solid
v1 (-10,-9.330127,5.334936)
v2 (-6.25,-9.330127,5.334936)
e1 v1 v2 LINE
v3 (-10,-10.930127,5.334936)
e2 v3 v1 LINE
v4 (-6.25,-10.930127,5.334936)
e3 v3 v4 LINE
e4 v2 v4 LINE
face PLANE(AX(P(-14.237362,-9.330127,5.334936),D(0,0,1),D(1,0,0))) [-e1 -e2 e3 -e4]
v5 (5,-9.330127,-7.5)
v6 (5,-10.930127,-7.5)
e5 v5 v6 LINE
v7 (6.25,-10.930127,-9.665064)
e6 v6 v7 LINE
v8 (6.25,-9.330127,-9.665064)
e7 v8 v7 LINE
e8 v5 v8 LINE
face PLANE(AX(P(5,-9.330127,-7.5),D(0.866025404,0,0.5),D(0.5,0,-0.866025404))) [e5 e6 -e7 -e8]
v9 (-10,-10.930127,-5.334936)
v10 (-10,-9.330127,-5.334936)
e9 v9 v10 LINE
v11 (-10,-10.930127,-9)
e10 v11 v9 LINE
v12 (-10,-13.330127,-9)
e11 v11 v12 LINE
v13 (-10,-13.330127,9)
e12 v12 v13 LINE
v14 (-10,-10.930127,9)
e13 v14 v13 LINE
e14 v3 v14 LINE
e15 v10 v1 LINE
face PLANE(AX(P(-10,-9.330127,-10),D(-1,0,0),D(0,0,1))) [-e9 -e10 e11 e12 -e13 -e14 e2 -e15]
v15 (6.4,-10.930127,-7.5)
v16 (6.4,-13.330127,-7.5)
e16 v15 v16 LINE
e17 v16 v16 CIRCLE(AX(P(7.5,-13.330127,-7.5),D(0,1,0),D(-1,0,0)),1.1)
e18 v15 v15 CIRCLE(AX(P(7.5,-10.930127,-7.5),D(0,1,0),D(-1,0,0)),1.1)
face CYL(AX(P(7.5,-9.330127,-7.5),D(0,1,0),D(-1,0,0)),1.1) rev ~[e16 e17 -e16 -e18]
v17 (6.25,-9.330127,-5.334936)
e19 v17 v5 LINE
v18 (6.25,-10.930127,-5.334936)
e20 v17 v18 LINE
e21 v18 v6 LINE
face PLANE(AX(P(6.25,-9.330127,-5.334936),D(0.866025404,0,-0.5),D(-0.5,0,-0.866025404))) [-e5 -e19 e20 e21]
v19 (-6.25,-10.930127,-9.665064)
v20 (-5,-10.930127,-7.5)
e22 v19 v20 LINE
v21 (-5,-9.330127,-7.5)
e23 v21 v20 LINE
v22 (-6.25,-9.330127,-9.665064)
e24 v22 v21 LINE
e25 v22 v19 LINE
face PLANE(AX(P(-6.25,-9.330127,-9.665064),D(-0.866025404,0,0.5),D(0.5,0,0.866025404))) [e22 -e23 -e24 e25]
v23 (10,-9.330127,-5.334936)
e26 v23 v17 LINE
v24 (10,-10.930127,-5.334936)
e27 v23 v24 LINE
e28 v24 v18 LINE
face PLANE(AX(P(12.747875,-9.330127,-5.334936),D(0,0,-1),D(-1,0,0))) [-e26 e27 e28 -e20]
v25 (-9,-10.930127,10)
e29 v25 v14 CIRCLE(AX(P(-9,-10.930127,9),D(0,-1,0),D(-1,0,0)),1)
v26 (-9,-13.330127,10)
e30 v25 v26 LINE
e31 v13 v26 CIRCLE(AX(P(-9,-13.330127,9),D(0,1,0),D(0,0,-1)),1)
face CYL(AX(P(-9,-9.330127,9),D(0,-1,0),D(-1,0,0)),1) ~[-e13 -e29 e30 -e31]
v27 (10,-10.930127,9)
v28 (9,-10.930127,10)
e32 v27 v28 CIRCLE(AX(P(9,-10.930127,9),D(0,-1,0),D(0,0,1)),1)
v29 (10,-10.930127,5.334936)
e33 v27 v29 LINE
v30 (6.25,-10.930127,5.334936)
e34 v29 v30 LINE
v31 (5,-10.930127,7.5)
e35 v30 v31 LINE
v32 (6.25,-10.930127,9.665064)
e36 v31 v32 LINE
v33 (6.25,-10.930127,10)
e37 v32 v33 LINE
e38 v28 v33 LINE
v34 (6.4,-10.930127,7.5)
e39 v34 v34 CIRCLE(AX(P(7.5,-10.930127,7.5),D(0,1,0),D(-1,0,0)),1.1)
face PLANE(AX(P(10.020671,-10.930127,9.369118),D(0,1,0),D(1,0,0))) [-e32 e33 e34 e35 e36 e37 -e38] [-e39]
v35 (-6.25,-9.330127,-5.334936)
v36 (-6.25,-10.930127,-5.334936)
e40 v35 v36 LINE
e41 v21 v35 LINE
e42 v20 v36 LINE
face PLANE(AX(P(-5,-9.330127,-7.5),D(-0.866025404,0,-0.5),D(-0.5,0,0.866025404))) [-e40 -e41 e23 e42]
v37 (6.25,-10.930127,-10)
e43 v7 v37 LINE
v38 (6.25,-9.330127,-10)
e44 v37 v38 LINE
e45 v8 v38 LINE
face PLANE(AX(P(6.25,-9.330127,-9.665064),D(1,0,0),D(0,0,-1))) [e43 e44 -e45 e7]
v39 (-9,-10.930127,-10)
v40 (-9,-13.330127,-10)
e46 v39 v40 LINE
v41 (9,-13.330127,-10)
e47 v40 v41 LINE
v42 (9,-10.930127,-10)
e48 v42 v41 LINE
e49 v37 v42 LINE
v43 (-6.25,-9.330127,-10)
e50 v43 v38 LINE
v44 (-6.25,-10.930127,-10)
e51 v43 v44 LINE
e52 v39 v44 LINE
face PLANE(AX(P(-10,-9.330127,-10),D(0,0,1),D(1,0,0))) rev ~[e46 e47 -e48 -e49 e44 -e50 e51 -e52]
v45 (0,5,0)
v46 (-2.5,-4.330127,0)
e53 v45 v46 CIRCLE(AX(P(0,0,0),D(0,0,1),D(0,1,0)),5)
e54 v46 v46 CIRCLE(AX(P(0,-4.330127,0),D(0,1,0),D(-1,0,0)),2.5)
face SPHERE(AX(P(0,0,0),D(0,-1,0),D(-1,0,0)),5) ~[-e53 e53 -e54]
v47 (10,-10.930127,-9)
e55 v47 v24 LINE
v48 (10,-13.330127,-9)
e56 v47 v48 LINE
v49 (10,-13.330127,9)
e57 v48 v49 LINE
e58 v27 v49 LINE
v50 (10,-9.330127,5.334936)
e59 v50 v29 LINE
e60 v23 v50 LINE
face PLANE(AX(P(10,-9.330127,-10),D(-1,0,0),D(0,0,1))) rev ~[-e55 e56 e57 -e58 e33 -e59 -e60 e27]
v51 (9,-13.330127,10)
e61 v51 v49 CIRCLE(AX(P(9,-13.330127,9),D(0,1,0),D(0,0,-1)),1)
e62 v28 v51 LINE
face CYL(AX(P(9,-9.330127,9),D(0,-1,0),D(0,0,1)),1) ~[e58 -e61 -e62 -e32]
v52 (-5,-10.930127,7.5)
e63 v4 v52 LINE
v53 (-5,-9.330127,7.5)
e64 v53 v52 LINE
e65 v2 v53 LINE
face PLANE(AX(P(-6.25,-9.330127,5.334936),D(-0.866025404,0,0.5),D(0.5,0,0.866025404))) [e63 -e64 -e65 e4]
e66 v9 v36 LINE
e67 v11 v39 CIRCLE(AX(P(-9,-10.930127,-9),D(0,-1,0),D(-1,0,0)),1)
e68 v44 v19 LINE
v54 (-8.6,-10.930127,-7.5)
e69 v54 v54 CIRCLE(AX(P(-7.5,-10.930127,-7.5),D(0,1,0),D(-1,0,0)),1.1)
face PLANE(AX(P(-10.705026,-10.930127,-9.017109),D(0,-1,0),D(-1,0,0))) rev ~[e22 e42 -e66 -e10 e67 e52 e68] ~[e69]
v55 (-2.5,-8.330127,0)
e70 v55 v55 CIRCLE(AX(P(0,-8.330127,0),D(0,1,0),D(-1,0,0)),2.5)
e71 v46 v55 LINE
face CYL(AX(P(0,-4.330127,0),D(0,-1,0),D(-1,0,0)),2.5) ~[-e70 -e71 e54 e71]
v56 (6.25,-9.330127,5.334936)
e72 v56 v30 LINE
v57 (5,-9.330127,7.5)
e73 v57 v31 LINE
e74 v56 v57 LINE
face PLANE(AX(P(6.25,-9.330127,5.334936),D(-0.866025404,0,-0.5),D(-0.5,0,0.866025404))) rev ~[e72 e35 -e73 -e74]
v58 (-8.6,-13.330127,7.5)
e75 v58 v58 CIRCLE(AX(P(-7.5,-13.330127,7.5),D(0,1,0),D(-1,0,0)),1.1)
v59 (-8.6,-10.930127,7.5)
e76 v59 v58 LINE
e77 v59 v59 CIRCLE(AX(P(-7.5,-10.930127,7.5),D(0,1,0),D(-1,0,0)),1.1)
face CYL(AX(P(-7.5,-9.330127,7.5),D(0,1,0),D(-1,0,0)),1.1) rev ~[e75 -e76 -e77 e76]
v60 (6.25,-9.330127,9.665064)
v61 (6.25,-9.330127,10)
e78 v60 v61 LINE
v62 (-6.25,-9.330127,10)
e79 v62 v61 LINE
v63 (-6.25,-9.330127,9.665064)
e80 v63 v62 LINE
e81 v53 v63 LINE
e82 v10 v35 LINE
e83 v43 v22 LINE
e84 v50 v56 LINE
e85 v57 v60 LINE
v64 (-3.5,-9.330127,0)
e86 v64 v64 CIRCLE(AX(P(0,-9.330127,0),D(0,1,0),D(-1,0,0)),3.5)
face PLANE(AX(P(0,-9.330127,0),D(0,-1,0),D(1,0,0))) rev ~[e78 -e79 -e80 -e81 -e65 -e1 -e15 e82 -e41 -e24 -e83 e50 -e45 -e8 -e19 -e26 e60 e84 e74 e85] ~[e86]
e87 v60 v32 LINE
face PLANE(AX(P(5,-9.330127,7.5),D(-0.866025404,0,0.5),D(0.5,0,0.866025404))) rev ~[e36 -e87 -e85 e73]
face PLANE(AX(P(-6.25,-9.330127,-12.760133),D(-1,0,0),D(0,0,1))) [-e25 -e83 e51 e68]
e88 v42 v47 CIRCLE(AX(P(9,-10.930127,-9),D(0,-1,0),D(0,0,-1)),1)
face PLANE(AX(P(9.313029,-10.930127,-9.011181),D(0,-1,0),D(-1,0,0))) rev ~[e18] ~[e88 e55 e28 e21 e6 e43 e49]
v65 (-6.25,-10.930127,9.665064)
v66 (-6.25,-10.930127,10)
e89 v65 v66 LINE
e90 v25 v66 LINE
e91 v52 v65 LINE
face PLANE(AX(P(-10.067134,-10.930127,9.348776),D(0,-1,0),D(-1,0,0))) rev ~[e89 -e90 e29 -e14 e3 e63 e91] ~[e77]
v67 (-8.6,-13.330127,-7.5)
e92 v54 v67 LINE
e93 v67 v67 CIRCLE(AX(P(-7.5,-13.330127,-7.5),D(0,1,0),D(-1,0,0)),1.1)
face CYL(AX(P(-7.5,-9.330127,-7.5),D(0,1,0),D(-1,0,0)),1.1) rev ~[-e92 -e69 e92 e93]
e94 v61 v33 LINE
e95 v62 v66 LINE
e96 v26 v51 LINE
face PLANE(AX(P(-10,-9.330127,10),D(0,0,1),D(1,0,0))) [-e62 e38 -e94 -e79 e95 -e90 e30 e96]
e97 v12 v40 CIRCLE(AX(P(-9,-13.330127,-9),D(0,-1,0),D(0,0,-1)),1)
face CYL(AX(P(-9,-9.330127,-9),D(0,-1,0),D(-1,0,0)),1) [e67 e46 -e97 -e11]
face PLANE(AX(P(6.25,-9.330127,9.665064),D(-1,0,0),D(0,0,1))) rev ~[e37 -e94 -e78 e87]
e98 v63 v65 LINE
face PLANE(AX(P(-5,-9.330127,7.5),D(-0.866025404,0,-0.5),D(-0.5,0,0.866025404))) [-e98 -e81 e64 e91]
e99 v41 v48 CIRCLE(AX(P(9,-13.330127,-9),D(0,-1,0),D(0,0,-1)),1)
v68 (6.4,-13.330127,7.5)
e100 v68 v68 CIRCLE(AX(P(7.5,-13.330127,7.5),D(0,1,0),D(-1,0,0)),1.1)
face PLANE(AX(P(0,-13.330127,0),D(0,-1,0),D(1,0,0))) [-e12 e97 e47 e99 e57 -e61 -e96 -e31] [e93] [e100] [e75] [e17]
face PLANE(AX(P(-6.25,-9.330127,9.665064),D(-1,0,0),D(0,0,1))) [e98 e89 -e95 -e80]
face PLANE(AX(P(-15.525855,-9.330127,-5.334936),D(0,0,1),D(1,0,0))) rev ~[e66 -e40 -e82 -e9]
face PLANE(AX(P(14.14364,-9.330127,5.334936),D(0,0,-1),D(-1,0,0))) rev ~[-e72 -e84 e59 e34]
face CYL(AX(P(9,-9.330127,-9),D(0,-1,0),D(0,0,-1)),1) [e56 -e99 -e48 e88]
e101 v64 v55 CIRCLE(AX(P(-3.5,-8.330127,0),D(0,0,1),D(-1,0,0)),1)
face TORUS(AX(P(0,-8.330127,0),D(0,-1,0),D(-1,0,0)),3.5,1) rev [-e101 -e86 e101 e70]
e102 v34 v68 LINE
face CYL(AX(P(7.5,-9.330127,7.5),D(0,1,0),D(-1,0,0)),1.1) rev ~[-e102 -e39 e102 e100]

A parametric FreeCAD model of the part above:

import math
import FreeCAD as App
import Part
import Sketcher

V = App.Vector
Q = App.Units.Quantity


def edges_at(feature, points):
    """Names of the edges that pass closest to the given points."""
    edges = feature.Shape.Edges
    near = lambda p: min(range(len(edges)), key=lambda i: edges[i].distToShape(Part.Vertex(*p))[0])
    return sorted({f"Edge{near(p) + 1}" for p in points})


def add_polygon(sketch, points):
    """Adds a closed chain of lines whose ends are joined by coincident constraints."""
    first, n = sketch.GeometryCount, len(points)
    for a, b in zip(points, points[1:] + points[:1]):
        sketch.addGeometry(Part.LineSegment(App.Vector(*a, 0), App.Vector(*b, 0)), False)
    for i in range(n):
        sketch.addConstraint(Sketcher.Constraint("Coincident", first + i, 2, first + (i + 1) % n, 1))

doc = App.newDocument("Part")
body = doc.addObject("PartDesign::Body", "Body")

# Sketch on XY plane
sketch1 = body.newObject("Sketcher::SketchObject", "Sketch")
sketch1.AttachmentSupport = (doc.getObject("XY_Plane"), [""])
sketch1.MapMode = "FlatFace"
sketch1.addGeometry(Part.LineSegment(V(-2.5, -4.3, 0), V(-2.5, -9.3, 0)), False)
sketch1.addGeometry(Part.LineSegment(V(-2.5, -9.3, 0), V(0, -9.3, 0)), False)
sketch1.addGeometry(Part.LineSegment(V(0, -9.3, 0), V(0, 5, 0)), False)
sketch1.addGeometry(Part.ArcOfCircle(Part.Circle(V(0, 0, 0), V(0, 0, 1), 5), math.radians(90), math.radians(240)), False)
sketch1.addConstraint(Sketcher.Constraint("Coincident", 0, 2, 1, 1))
sketch1.addConstraint(Sketcher.Constraint("Coincident", 1, 2, 2, 1))
sketch1.addConstraint(Sketcher.Constraint("Coincident", 2, 2, 3, 1))
sketch1.addConstraint(Sketcher.Constraint("Coincident", 3, 2, 0, 1))
sketch1.addConstraint(Sketcher.Constraint("Vertical", 0))
sketch1.addConstraint(Sketcher.Constraint("Horizontal", 1))
sketch1.addConstraint(Sketcher.Constraint("Vertical", 2))
sketch1.addConstraint(Sketcher.Constraint("Coincident", 3, 3, -1, 1))
sketch1.addConstraint(Sketcher.Constraint("PointOnObject", 1, 2, -2))
sketch1.addConstraint(Sketcher.Constraint("Radius", 3, 5.0))
sketch1.addConstraint(Sketcher.Constraint("DistanceY", 0, 2, 0, 1, 5.0))
sketch1.addConstraint(Sketcher.Constraint("DistanceX", 1, 1, 1, 2, 2.5))
revolution = body.newObject("PartDesign::Revolution", "Revolution")
revolution.Profile = sketch1
revolution.ReferenceAxis = (sketch1, ["V_Axis"])
revolution.Angle = 360

# Sketch on XZ plane
sketch2 = body.newObject("Sketcher::SketchObject", "Sketch001")
sketch2.AttachmentSupport = (doc.getObject("XZ_Plane"), [""])
sketch2.MapMode = "FlatFace"
sketch2.AttachmentOffset = App.Placement(V(0, 0, 9.330127), App.Rotation())
add_polygon(sketch2, [(-10, 10), (-10, -10), (10, -10), (10, 10)])  # lines 0-3
sketch2.addConstraint(Sketcher.Constraint("Vertical", 0))
sketch2.addConstraint(Sketcher.Constraint("Horizontal", 1))
sketch2.addConstraint(Sketcher.Constraint("Vertical", 2))
sketch2.addConstraint(Sketcher.Constraint("Horizontal", 3))
sketch2.addConstraint(Sketcher.Constraint("Symmetric", 0, 2, 2, 2, -1, 1))
sketch2.addConstraint(Sketcher.Constraint("Equal", 3, 0))
sketch2.addConstraint(Sketcher.Constraint("DistanceX", 1, 1, 1, 2, 20.0))
pad1 = body.newObject("PartDesign::Pad", "Pad")
pad1.Profile = sketch2
pad1.Length = 4

# Sketch on XZ plane
sketch3 = body.newObject("Sketcher::SketchObject", "Sketch002")
sketch3.AttachmentSupport = (doc.getObject("XZ_Plane"), [""])
sketch3.MapMode = "FlatFace"
sketch3.AttachmentOffset = App.Placement(V(0, 0, 9.330127), App.Rotation())
sketch3.addGeometry(Part.Circle(V(7.5, 7.5, 0), V(0, 0, 1), 1.1), False)
sketch3.addConstraint(Sketcher.Constraint("Diameter", 0, 2.2))
sketch3.addConstraint(Sketcher.Constraint("DistanceX", -1, 1, 0, 3, 7.5))
sketch3.addConstraint(Sketcher.Constraint("DistanceY", -1, 1, 0, 3, 7.5))
pocket1 = body.newObject("PartDesign::Pocket", "Pocket")
pocket1.Profile = sketch3
pocket1.Type = "UpToFirst"
pocket1.Reversed = True

# Sketch on XZ plane
sketch4 = body.newObject("Sketcher::SketchObject", "Sketch003")
sketch4.AttachmentSupport = (doc.getObject("XZ_Plane"), [""])
sketch4.MapMode = "FlatFace"
sketch4.AttachmentOffset = App.Placement(V(0, 0, 9.330127), App.Rotation())
sketch4.addGeometry(Part.Circle(V(7.5, -7.5, 0), V(0, 0, 1), 1.1), False)
sketch4.addConstraint(Sketcher.Constraint("Diameter", 0, 2.2))
sketch4.addConstraint(Sketcher.Constraint("DistanceX", -1, 1, 0, 3, 7.5))
sketch4.addConstraint(Sketcher.Constraint("DistanceY", 0, 3, -1, 1, 7.5))
pocket2 = body.newObject("PartDesign::Pocket", "Pocket001")
pocket2.Profile = sketch4
pocket2.Type = "UpToFirst"
pocket2.Reversed = True

# Sketch on XZ plane
sketch5 = body.newObject("Sketcher::SketchObject", "Sketch004")
sketch5.AttachmentSupport = (doc.getObject("XZ_Plane"), [""])
sketch5.MapMode = "FlatFace"
sketch5.AttachmentOffset = App.Placement(V(0, 0, 9.330127), App.Rotation())
sketch5.addGeometry(Part.Circle(V(-7.5, -7.5, 0), V(0, 0, 1), 1.1), False)
sketch5.addConstraint(Sketcher.Constraint("Diameter", 0, 2.2))
sketch5.addConstraint(Sketcher.Constraint("DistanceX", 0, 3, -1, 1, 7.5))
sketch5.addConstraint(Sketcher.Constraint("DistanceY", 0, 3, -1, 1, 7.5))
pocket3 = body.newObject("PartDesign::Pocket", "Pocket002")
pocket3.Profile = sketch5
pocket3.Type = "UpToFirst"
pocket3.Reversed = True

# Sketch on XZ plane
sketch6 = body.newObject("Sketcher::SketchObject", "Sketch005")
sketch6.AttachmentSupport = (doc.getObject("XZ_Plane"), [""])
sketch6.MapMode = "FlatFace"
sketch6.AttachmentOffset = App.Placement(V(0, 0, 9.330127), App.Rotation())
sketch6.addGeometry(Part.Circle(V(-7.5, 7.5, 0), V(0, 0, 1), 1.1), False)
sketch6.addConstraint(Sketcher.Constraint("Diameter", 0, 2.2))
sketch6.addConstraint(Sketcher.Constraint("DistanceX", 0, 3, -1, 1, 7.5))
sketch6.addConstraint(Sketcher.Constraint("DistanceY", -1, 1, 0, 3, 7.5))
pocket4 = body.newObject("PartDesign::Pocket", "Pocket003")
pocket4.Profile = sketch6
pocket4.Type = "UpToFirst"
pocket4.Reversed = True
doc.recompute()

fillet = body.newObject("PartDesign::Fillet", "Fillet")
fillet.Base = (pocket4, edges_at(pocket4, [
    (-10, -11.33, -10),
    (10, -11.33, -10),
    (10, -11.33, 10),
    (2.5, -9.33, 0),
    (-10, -11.33, 10),
]))
fillet.Radius = 1

# Sketch on XZ plane
sketch7 = body.newObject("Sketcher::SketchObject", "Sketch006")
sketch7.AttachmentSupport = (doc.getObject("XZ_Plane"), [""])
sketch7.MapMode = "FlatFace"
sketch7.AttachmentOffset = App.Placement(V(0, 0, 9.330127), App.Rotation())
add_polygon(sketch7, [(12.7, -5.3), (12.7, -12.8), (6.2, -12.8), (6.2, -9.7), (5, -7.5), (6.2, -5.3)])  # lines 0-5
add_polygon(sketch7, [(6.2, 13.5), (14.1, 13.5), (14.1, 5.3), (6.2, 5.3), (5, 7.5), (6.2, 9.7)])  # lines 6-11
add_polygon(sketch7, [(-6.2, 5.3), (-14.2, 5.3), (-14.2, 13.4), (-6.2, 13.4), (-6.2, 9.7), (-5, 7.5)])  # lines 12-17
add_polygon(sketch7, [(-6.2, -9.7), (-6.2, -12.8), (-15.5, -12.8), (-15.5, -5.3), (-6.2, -5.3), (-5, -7.5)])  # lines 18-23
sketch7.addConstraint(Sketcher.Constraint("Vertical", 0))
sketch7.addConstraint(Sketcher.Constraint("Horizontal", 1))
sketch7.addConstraint(Sketcher.Constraint("Vertical", 2))
sketch7.addConstraint(Sketcher.Constraint("Horizontal", 5))
sketch7.addConstraint(Sketcher.Constraint("Horizontal", 6))
sketch7.addConstraint(Sketcher.Constraint("Vertical", 7))
sketch7.addConstraint(Sketcher.Constraint("Horizontal", 8))
sketch7.addConstraint(Sketcher.Constraint("Vertical", 11))
sketch7.addConstraint(Sketcher.Constraint("Horizontal", 12))
sketch7.addConstraint(Sketcher.Constraint("Vertical", 13))
sketch7.addConstraint(Sketcher.Constraint("Horizontal", 14))
sketch7.addConstraint(Sketcher.Constraint("Vertical", 15))
sketch7.addConstraint(Sketcher.Constraint("Vertical", 18))
sketch7.addConstraint(Sketcher.Constraint("Horizontal", 19))
sketch7.addConstraint(Sketcher.Constraint("Vertical", 20))
sketch7.addConstraint(Sketcher.Constraint("Horizontal", 21))
sketch7.addConstraint(Sketcher.Constraint("Symmetric", 2, 2, 15, 2, -1, 1))
sketch7.addConstraint(Sketcher.Constraint("Symmetric", 3, 2, 16, 2, -1, 1))
sketch7.addConstraint(Sketcher.Constraint("Symmetric", 4, 2, 17, 2, -1, 1))
sketch7.addConstraint(Sketcher.Constraint("Symmetric", 8, 2, 21, 2, -1, 1))
sketch7.addConstraint(Sketcher.Constraint("Symmetric", 9, 2, 22, 2, -1, 1))
sketch7.addConstraint(Sketcher.Constraint("Symmetric", 10, 2, 23, 2, -1, 1))
sketch7.addConstraint(Sketcher.Constraint("Symmetric", 10, 2, 15, 2, -2))
sketch7.addConstraint(Sketcher.Constraint("Symmetric", 9, 2, 16, 2, -2))
sketch7.addConstraint(Sketcher.Constraint("Symmetric", 8, 2, 17, 2, -2))
sketch7.addConstraint(Sketcher.Constraint("Parallel", 3, 9))
sketch7.addConstraint(Sketcher.Constraint("Horizontal", 1, 2, 18, 2))
sketch7.addConstraint(Sketcher.Constraint("Vertical", 2, 2, 4, 2))
sketch7.addConstraint(Sketcher.Constraint("Angle", 3, Q("120 deg")))
sketch7.addConstraint(Sketcher.Constraint("DistanceX", -1, 1, 3, 2, 5.0))
sketch7.addConstraint(Sketcher.Constraint("DistanceY", 2, 2, 7, 2, 15.0))
sketch7.addConstraint(Sketcher.Constraint("Distance", 3, 2.5))
sketch7.addConstraint(Sketcher.Constraint("DistanceX", 6, 1, 6, 2, 7.89364))
sketch7.addConstraint(Sketcher.Constraint("DistanceY", 2, 1, 2, 2, 3.095069))
sketch7.addConstraint(Sketcher.Constraint("DistanceY", 13, 1, 13, 2, 8.104639))
sketch7.addConstraint(Sketcher.Constraint("DistanceX", 1, 2, 1, 1, 6.497875))
sketch7.addConstraint(Sketcher.Constraint("DistanceX", 12, 2, 12, 1, 7.987362))
sketch7.addConstraint(Sketcher.Constraint("DistanceX", 19, 2, 19, 1, 9.275855))
sketch7.addConstraint(Sketcher.Constraint("DistanceY", 7, 2, 7, 1, 8.146422))
pocket5 = body.newObject("PartDesign::Pocket", "Pocket004")
pocket5.Profile = sketch7
pocket5.Length = 1.6
pocket5.Reversed = True

doc.recompute()
